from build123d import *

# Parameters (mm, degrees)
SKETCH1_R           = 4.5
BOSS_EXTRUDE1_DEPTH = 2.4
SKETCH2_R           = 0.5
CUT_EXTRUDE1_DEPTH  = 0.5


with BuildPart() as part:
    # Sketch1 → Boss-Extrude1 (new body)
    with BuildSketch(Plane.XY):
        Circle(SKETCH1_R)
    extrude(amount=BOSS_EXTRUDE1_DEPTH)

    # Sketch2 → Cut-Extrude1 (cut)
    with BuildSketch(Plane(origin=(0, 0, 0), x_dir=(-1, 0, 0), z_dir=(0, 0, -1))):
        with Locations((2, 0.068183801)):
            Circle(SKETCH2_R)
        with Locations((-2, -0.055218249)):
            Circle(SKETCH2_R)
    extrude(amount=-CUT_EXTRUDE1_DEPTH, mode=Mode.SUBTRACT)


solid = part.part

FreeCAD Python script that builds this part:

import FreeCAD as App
import Part
import Sketcher

doc = App.newDocument("Part")
params = doc.addObject("Spreadsheet::Sheet", "Params")
for row, (alias, value) in enumerate([
    ("sketch1_diameter", "9 mm"),
    ("pad1_length", "2.4 mm"),
    ("sketch2_diameter", "1 mm"),
    ("pocket1_length", "0.5 mm"),
], start=1):
    params.set(f"A{row}", alias)
    params.set(f"B{row}", "=" + value)
    params.setAlias(f"B{row}", alias)

body = doc.addObject("PartDesign::Body", "Body")

sketch1 = doc.addObject("Sketcher::SketchObject", "Sketch")
body.addObject(sketch1)
sketch1.AttachmentSupport = (doc.XY_Plane, [""])
sketch1.MapMode = "FlatFace"
sketch1.addGeometry(Part.Circle(App.Vector(0, 0, 0), App.Vector(0, 0, 1), 4.5), False)
sketch1.addConstraint([
    Sketcher.Constraint("Coincident", 0, 3, -1, 1),
    Sketcher.Constraint("Diameter", 0, 9.0),
])
sketch1.setExpression("Constraints[1]", "Params.sketch1_diameter")
pad1 = doc.addObject("PartDesign::Pad", "Pad")
body.addObject(pad1)
pad1.Profile = sketch1
pad1.setExpression("Length", "Params.pad1_length")

sketch2 = doc.addObject("Sketcher::SketchObject", "Sketch001")
body.addObject(sketch2)
sketch2.AttachmentSupport = (doc.XY_Plane, [""])
sketch2.MapMode = "FlatFace"
sketch2.addGeometry([
    Part.Circle(App.Vector(-2, 0.1, 0), App.Vector(0, 0, 1), 0.5),
    Part.Circle(App.Vector(2, -0.1, 0), App.Vector(0, 0, 1), 0.5),
], False)
sketch2.addConstraint([
    Sketcher.Constraint("Equal", 0, 1),
    Sketcher.Constraint("Diameter", 0, 1.0),
    Sketcher.Constraint("DistanceX", 0, 3, -1, 1, 2.0),
    Sketcher.Constraint("DistanceX", -1, 1, 1, 3, 2.0),
    Sketcher.Constraint("DistanceY", 1, 3, -1, 1, 0.055218),
    Sketcher.Constraint("DistanceY", -1, 1, 0, 3, 0.068184),
])
sketch2.setExpression("Constraints[1]", "Params.sketch2_diameter")
pocket1 = doc.addObject("PartDesign::Pocket", "Pocket")
body.addObject(pocket1)
pocket1.Profile = sketch2
pocket1.setExpression("Length", "Params.pocket1_length")
pocket1.Reversed = True

doc.recompute()
